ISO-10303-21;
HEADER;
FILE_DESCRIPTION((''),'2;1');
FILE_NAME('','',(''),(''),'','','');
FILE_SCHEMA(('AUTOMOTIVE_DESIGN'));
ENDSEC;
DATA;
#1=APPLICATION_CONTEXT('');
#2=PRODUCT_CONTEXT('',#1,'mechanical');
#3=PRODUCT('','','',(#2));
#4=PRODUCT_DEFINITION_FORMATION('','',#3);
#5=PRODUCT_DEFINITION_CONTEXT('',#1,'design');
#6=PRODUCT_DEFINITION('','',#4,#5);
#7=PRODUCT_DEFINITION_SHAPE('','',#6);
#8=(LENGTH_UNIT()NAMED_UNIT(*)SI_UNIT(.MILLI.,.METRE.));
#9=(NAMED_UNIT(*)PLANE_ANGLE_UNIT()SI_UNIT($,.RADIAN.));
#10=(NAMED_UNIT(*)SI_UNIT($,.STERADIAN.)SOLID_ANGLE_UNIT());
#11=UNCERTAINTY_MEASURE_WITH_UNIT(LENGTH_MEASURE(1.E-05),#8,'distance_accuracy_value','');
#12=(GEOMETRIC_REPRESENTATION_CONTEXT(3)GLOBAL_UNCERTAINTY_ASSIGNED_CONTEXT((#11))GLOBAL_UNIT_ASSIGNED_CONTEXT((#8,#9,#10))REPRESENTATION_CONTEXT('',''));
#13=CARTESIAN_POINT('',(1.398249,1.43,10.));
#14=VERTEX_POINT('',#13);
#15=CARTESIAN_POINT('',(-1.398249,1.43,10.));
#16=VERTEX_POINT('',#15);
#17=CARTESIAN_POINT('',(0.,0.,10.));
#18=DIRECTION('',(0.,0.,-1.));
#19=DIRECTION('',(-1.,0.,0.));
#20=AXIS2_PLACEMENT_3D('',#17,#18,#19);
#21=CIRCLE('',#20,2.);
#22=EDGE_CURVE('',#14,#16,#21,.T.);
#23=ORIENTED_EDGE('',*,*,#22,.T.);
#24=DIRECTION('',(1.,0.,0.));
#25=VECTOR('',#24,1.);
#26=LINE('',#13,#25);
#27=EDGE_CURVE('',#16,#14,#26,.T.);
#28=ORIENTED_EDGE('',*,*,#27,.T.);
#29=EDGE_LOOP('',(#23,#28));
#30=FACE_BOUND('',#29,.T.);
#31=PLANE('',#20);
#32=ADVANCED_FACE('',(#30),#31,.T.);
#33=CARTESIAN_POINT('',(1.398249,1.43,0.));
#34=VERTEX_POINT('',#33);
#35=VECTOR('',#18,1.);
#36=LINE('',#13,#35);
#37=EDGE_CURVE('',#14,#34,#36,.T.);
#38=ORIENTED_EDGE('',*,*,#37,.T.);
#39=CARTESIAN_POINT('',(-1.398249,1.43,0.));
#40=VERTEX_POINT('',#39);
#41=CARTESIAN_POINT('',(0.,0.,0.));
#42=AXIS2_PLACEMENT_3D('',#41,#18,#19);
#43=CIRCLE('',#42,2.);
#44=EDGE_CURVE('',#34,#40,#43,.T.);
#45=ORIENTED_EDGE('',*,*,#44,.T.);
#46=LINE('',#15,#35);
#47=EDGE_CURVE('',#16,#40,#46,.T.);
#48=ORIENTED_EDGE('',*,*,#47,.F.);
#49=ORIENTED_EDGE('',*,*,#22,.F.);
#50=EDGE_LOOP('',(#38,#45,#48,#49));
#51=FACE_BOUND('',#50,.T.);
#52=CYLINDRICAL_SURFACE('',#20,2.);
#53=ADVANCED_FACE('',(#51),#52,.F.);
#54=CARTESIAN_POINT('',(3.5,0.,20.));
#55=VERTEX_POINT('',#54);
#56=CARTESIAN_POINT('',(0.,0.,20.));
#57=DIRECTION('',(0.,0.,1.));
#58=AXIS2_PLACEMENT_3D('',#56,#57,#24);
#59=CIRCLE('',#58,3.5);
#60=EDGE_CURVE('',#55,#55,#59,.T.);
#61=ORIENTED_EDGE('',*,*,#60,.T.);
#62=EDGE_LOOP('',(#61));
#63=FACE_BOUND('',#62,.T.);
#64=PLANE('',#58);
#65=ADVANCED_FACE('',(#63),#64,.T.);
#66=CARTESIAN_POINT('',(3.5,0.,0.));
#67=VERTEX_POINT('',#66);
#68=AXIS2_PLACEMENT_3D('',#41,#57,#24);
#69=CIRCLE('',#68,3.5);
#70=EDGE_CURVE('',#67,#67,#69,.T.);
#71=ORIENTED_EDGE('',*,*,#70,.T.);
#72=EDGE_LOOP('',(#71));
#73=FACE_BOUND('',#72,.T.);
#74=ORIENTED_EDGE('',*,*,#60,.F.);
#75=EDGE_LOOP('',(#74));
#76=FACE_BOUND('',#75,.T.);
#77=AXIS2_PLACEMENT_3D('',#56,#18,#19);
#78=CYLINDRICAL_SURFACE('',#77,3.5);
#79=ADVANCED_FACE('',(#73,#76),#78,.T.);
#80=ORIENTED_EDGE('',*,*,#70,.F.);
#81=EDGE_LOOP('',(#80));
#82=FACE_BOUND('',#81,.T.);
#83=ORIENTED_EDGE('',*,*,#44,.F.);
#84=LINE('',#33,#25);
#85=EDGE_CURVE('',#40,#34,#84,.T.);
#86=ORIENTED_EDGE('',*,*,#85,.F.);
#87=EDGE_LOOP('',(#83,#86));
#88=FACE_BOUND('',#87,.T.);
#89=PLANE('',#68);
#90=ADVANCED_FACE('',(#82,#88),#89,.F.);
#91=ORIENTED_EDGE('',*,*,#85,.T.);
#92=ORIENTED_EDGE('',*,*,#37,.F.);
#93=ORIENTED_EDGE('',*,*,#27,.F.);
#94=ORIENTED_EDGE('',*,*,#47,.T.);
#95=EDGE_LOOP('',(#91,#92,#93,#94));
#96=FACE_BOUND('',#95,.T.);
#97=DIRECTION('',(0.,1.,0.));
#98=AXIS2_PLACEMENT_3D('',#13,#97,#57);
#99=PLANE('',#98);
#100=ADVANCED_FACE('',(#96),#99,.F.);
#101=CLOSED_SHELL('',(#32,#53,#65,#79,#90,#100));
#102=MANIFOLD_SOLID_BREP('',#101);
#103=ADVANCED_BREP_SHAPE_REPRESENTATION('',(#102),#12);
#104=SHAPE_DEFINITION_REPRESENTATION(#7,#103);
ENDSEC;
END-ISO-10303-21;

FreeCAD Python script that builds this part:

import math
import FreeCAD as App
import Part
import Sketcher

doc = App.newDocument("Part")
params = doc.addObject("Spreadsheet::Sheet", "Params")
for row, (alias, value) in enumerate([
    ("sketch1_diameter", "7 mm"),
    ("pad1_length", "20 mm"),
    ("sketch2_radius", "2 mm"),
    ("pocket1_length", "10 mm"),
], start=1):
    params.set(f"A{row}", alias)
    params.set(f"B{row}", "=" + value)
    params.setAlias(f"B{row}", alias)

body = doc.addObject("PartDesign::Body", "Body")

# Sketch on XY plane
sketch1 = doc.addObject("Sketcher::SketchObject", "Sketch")
body.addObject(sketch1)
sketch1.AttachmentSupport = (doc.XY_Plane, [""])
sketch1.MapMode = "FlatFace"
sketch1.addGeometry(Part.Circle(App.Vector(0, 0, 0), App.Vector(0, 0, 1), 3.5), False)
sketch1.addConstraint([
    Sketcher.Constraint("Coincident", 0, 3, -1, 1),
    Sketcher.Constraint("Diameter", 0, 7.0),
])
sketch1.setExpression("Constraints[1]", "Params.sketch1_diameter")
pad1 = doc.addObject("PartDesign::Pad", "Pad")
body.addObject(pad1)
pad1.Profile = sketch1
pad1.setExpression("Length", "Params.pad1_length")

# Sketch on XY plane
sketch2 = doc.addObject("Sketcher::SketchObject", "Sketch001")
body.addObject(sketch2)
sketch2.AttachmentSupport = (doc.XY_Plane, [""])
sketch2.MapMode = "FlatFace"
sketch2.addGeometry([
    Part.LineSegment(App.Vector(-1.4, 1.4, 0), App.Vector(1.4, 1.4, 0)),
    Part.ArcOfCircle(Part.Circle(App.Vector(0, 0, 0), App.Vector(0, 0, 1), 2), math.radians(134), math.radians(406)),
], False)
sketch2.addConstraint([
    Sketcher.Constraint("Coincident", 0, 1, 1, 1),
    Sketcher.Constraint("Coincident", 1, 2, 0, 2),
    Sketcher.Constraint("Horizontal", 0),
    Sketcher.Constraint("Coincident", 1, 3, -1, 1),
    Sketcher.Constraint("Radius", 1, 2.0),
    Sketcher.Constraint("DistanceY", -1, 1, 0, 1, 1.43),
])
sketch2.setExpression("Constraints[4]", "Params.sketch2_radius")
pocket1 = doc.addObject("PartDesign::Pocket", "Pocket")
body.addObject(pocket1)
pocket1.Profile = sketch2
pocket1.setExpression("Length", "Params.pocket1_length")
pocket1.Reversed = True

doc.recompute()
